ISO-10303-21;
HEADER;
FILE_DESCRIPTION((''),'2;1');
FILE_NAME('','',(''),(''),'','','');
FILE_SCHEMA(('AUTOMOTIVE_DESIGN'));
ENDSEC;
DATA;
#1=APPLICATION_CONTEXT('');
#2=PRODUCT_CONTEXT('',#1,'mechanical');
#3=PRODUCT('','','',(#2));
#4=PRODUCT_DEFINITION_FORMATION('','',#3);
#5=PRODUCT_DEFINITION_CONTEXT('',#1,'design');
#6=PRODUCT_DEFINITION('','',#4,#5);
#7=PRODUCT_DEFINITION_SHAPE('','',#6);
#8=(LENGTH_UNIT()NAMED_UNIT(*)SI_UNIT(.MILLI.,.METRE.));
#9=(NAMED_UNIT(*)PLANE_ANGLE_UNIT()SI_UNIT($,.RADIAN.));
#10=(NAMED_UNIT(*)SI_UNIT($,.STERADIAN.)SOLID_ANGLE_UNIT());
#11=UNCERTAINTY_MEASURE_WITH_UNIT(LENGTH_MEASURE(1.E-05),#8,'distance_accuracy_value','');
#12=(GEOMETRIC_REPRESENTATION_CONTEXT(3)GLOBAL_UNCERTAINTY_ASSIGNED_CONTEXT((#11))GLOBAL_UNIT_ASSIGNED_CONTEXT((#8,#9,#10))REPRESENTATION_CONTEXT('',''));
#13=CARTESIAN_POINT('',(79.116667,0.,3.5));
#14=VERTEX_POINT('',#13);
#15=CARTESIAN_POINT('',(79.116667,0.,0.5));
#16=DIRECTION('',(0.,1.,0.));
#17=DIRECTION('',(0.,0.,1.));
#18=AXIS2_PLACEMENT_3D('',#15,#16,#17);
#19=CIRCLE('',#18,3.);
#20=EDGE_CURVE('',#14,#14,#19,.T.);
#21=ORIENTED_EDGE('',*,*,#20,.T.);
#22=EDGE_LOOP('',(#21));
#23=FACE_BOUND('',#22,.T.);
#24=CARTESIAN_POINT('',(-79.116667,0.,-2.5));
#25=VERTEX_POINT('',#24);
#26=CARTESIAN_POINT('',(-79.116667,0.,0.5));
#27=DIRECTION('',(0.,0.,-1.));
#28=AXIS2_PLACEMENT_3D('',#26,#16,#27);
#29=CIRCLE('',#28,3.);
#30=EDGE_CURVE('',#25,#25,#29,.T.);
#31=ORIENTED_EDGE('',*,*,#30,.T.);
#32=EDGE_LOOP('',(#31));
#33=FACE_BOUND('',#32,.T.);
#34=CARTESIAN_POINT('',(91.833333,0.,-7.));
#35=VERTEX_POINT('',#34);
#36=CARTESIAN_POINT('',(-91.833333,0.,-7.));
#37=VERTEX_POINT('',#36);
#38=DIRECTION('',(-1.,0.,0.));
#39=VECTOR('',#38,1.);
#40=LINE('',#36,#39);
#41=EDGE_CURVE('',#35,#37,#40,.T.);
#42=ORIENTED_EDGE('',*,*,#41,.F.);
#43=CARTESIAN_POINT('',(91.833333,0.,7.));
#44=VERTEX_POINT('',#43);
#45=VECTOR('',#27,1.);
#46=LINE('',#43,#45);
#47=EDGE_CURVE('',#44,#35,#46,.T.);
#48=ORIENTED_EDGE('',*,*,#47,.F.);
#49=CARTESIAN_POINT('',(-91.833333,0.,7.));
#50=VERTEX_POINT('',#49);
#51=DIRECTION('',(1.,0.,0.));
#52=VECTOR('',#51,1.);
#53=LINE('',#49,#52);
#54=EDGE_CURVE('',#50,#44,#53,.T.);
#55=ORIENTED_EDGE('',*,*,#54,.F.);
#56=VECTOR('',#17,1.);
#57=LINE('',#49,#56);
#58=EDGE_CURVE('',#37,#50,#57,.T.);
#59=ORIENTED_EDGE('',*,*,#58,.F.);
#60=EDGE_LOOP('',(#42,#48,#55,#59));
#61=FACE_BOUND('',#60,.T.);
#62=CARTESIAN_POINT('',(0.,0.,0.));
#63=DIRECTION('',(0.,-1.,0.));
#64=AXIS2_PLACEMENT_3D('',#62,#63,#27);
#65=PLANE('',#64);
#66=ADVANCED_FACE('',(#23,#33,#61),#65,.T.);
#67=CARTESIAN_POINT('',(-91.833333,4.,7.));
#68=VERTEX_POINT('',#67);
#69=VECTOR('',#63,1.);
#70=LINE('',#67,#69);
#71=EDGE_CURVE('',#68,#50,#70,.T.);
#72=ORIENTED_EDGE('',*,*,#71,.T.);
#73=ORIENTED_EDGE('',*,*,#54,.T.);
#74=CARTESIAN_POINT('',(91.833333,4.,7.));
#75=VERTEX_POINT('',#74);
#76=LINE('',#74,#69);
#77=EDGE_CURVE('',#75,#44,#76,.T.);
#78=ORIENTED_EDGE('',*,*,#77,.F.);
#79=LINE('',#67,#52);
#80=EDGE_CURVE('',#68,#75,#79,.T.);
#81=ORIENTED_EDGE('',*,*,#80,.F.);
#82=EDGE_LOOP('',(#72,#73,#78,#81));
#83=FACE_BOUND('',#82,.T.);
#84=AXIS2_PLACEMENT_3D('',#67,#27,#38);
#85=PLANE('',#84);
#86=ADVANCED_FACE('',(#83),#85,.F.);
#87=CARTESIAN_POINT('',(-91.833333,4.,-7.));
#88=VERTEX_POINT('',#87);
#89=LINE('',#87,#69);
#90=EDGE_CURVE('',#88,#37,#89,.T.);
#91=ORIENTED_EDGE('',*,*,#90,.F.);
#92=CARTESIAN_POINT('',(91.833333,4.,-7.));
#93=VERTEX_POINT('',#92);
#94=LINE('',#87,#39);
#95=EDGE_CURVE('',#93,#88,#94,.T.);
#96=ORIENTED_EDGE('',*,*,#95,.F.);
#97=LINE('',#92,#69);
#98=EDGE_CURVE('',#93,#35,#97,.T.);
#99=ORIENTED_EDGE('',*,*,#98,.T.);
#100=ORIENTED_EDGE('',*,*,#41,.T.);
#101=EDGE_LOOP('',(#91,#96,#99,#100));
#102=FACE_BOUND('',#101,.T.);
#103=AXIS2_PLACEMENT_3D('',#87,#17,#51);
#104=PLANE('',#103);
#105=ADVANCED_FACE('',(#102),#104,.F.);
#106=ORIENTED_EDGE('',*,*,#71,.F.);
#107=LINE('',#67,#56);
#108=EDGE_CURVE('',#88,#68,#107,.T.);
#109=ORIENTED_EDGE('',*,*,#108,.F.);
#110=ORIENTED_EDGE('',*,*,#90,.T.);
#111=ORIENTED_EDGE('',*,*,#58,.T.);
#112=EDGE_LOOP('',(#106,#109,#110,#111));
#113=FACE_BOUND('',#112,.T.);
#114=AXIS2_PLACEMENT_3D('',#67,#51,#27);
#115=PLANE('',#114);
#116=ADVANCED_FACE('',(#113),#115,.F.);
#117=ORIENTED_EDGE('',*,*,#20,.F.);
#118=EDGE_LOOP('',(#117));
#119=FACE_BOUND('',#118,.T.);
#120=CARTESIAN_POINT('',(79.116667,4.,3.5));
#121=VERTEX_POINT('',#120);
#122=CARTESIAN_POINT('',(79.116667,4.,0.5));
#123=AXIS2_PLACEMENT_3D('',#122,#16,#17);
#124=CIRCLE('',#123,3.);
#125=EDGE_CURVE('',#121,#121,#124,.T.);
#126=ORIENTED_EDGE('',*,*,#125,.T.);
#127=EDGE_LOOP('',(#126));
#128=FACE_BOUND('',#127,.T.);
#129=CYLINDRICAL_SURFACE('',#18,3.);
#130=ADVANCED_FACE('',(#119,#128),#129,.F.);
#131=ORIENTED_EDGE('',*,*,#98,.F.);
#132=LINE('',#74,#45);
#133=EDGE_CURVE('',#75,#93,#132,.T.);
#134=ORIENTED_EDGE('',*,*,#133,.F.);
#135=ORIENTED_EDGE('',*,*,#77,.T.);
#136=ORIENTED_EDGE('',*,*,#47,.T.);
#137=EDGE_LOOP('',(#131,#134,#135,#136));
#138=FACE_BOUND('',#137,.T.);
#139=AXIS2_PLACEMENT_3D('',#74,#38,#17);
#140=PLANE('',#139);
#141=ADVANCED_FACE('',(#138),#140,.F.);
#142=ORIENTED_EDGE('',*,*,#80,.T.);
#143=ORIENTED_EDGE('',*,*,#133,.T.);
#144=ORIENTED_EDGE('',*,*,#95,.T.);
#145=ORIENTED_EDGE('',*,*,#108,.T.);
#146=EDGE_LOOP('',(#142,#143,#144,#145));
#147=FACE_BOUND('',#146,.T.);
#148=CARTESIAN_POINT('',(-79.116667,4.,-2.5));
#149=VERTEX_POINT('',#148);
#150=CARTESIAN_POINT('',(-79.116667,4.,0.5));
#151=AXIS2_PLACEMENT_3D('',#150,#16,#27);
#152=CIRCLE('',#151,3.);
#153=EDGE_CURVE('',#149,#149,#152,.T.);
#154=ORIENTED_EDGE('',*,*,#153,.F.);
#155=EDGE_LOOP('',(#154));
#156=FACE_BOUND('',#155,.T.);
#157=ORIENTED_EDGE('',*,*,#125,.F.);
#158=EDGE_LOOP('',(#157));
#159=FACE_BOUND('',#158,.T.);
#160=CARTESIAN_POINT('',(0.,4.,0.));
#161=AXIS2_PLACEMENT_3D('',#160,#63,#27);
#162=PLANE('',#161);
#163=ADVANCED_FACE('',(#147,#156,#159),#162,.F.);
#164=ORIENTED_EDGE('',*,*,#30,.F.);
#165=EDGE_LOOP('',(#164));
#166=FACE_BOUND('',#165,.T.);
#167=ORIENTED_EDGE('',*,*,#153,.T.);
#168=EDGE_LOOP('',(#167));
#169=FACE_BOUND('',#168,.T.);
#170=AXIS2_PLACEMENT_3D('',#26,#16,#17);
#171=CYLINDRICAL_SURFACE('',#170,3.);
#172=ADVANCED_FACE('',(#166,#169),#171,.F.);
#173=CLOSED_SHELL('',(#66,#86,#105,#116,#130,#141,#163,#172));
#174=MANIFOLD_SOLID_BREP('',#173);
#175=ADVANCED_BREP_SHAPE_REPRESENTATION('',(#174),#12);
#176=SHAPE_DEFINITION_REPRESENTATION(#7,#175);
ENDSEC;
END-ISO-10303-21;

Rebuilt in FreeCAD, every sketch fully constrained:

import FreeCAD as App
import Part
import Sketcher


def add_polygon(sketch, points):
    """Adds a closed chain of lines whose ends are joined by coincident constraints."""
    first, n = sketch.GeometryCount, len(points)
    for a, b in zip(points, points[1:] + points[:1]):
        sketch.addGeometry(Part.LineSegment(App.Vector(*a, 0), App.Vector(*b, 0)), False)
    for i in range(n):
        sketch.addConstraint(Sketcher.Constraint("Coincident", first + i, 2, first + (i + 1) % n, 1))

doc = App.newDocument("Part")
body = doc.addObject("PartDesign::Body", "Body")

# Sketch on XZ plane
sketch1 = body.newObject("Sketcher::SketchObject", "Sketch")
sketch1.AttachmentSupport = (doc.getObject("XZ_Plane"), [""])
sketch1.MapMode = "FlatFace"
add_polygon(sketch1, [(-92, -7), (-92, 7), (92, 7), (92, -7)])  # lines 0-3
sketch1.addConstraint(Sketcher.Constraint("Vertical", 0))
sketch1.addConstraint(Sketcher.Constraint("Horizontal", 1))
sketch1.addConstraint(Sketcher.Constraint("Vertical", 2))
sketch1.addConstraint(Sketcher.Constraint("Horizontal", 3))
sketch1.addConstraint(Sketcher.Constraint("Symmetric", 0, 2, 2, 2, -1, 1))
sketch1.addConstraint(Sketcher.Constraint("DistanceY", 0, 1, 0, 2, 14.0))
sketch1.addConstraint(Sketcher.Constraint("DistanceX", 1, 1, 1, 2, 183.666667))
pad1 = body.newObject("PartDesign::Pad", "Pad")
pad1.Profile = sketch1
pad1.Length = 4
pad1.Reversed = True

# Sketch on XZ plane
sketch2 = body.newObject("Sketcher::SketchObject", "Sketch001")
sketch2.AttachmentSupport = (doc.getObject("XZ_Plane"), [""])
sketch2.MapMode = "FlatFace"
sketch2.AttachmentOffset = App.Placement(App.Vector(0, 0, -4), App.Rotation())
sketch2.addGeometry(Part.Circle(App.Vector(79.1, 0.5, 0), App.Vector(0, 0, 1), 3), False)
sketch2.addGeometry(Part.Circle(App.Vector(-79.1, 0.5, 0), App.Vector(0, 0, 1), 3), False)
sketch2.addConstraint(Sketcher.Constraint("Equal", 0, 1))
sketch2.addConstraint(Sketcher.Constraint("Symmetric", 0, 3, 1, 3, -2))
sketch2.addConstraint(Sketcher.Constraint("Diameter", 0, 6.0))
sketch2.addConstraint(Sketcher.Constraint("DistanceY", -1, 1, 0, 3, 0.5))
sketch2.addConstraint(Sketcher.Constraint("DistanceX", -1, 1, 0, 3, 79.116667))
pocket1 = body.newObject("PartDesign::Pocket", "Pocket")
pocket1.Profile = sketch2
pocket1.Type = "ThroughAll"
pocket1.Reversed = True

doc.recompute()
